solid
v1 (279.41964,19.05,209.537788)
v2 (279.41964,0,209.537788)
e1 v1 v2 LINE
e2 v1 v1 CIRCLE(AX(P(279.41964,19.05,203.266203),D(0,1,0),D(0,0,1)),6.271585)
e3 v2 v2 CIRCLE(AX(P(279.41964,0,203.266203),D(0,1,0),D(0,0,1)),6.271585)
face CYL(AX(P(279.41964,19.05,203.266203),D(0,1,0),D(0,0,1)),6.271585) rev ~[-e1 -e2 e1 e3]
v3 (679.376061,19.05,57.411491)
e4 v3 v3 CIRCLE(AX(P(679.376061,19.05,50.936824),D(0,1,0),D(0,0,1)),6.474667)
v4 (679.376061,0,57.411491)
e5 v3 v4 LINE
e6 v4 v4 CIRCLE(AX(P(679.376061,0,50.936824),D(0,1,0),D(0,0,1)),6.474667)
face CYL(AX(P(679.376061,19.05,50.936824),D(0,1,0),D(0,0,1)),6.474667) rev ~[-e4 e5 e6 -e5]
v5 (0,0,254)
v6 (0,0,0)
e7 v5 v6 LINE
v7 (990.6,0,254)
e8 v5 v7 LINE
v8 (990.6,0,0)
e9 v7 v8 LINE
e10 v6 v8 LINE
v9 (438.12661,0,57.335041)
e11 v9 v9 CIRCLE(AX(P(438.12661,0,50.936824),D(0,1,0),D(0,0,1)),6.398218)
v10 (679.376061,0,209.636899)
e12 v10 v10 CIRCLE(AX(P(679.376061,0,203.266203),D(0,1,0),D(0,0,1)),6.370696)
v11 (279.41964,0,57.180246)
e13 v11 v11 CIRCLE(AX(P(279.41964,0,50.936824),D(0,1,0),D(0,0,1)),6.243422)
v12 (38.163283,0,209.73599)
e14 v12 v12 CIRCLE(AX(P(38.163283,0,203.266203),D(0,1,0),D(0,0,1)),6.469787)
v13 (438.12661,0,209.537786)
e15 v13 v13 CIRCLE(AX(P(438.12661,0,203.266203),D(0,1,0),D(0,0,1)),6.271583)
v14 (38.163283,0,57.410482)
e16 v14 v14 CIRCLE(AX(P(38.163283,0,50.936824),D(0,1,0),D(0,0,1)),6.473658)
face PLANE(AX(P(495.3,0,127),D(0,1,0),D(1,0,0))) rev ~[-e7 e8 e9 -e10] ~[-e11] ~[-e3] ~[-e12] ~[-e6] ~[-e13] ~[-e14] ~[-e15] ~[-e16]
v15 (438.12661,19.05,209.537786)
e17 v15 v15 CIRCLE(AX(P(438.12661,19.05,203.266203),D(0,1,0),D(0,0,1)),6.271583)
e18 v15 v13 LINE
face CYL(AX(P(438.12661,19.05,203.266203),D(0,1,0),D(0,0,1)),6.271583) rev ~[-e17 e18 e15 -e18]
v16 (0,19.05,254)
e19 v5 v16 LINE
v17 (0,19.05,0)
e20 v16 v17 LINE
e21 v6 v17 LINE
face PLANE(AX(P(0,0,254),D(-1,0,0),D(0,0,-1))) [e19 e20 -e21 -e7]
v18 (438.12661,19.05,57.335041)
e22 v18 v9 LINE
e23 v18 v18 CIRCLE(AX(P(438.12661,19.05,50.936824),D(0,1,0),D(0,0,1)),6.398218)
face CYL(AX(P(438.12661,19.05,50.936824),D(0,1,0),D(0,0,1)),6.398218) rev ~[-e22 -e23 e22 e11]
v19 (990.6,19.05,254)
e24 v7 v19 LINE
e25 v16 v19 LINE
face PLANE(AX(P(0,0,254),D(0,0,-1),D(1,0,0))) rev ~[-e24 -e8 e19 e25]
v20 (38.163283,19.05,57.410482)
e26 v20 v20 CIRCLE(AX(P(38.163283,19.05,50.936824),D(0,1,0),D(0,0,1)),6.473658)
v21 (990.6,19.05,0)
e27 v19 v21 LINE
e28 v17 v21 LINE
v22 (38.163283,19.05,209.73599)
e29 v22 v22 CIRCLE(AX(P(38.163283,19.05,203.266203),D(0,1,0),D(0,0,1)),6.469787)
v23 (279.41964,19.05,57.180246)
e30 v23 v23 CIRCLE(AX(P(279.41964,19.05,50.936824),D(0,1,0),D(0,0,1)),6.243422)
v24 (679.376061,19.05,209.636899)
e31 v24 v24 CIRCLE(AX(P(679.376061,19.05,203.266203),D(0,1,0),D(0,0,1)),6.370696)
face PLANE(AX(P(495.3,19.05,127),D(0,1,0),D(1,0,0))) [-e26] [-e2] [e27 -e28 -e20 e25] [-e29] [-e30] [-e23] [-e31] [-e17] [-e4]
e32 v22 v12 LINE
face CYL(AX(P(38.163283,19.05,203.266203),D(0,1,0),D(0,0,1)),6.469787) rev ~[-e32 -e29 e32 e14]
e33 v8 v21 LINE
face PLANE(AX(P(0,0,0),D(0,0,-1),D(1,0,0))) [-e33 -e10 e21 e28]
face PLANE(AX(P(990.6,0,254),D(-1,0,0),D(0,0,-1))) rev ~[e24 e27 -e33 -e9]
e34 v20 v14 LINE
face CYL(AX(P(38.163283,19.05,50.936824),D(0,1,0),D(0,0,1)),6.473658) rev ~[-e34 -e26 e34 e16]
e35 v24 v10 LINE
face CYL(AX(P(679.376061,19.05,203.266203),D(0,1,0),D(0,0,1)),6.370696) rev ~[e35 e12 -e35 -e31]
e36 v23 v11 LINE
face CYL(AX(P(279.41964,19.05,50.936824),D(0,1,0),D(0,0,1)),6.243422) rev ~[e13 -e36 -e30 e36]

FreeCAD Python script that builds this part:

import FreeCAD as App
import Part
import Sketcher

V = App.Vector
Q = App.Units.Quantity


def add_polygon(sketch, points):
    """Adds a closed chain of lines whose ends are joined by coincident constraints."""
    first, n = sketch.GeometryCount, len(points)
    for a, b in zip(points, points[1:] + points[:1]):
        sketch.addGeometry(Part.LineSegment(App.Vector(*a, 0), App.Vector(*b, 0)), False)
    for i in range(n):
        sketch.addConstraint(Sketcher.Constraint("Coincident", first + i, 2, first + (i + 1) % n, 1))

doc = App.newDocument("Part")
body = doc.addObject("PartDesign::Body", "Body")

sketch1 = body.newObject("Sketcher::SketchObject", "Sketch")
sketch1.AttachmentSupport = (doc.getObject("XZ_Plane"), [""])
sketch1.MapMode = "FlatFace"
add_polygon(sketch1, [(0, 0), (0, 254), (991, 254), (991, 0)])
sketch1.addConstraint([
    Sketcher.Constraint("Vertical", 0),
    Sketcher.Constraint("Horizontal", 1),
    Sketcher.Constraint("Vertical", 2),
    Sketcher.Constraint("Horizontal", 3),
    Sketcher.Constraint("Coincident", 3, 2, -1, 1),
    Sketcher.Constraint("DistanceX", 1, 1, 1, 2, Q("39 in")),
    Sketcher.Constraint("DistanceY", 0, 1, 0, 2, Q("10 in")),
])
pad1 = body.newObject("PartDesign::Pad", "Pad")
pad1.Profile = sketch1
pad1.Length = Q("0.75 in")
pad1.Reversed = True

sketch2 = body.newObject("Sketcher::SketchObject", "Sketch001")
sketch2.AttachmentSupport = (doc.getObject("XZ_Plane"), [""])
sketch2.MapMode = "FlatFace"
sketch2.AttachmentOffset = App.Placement(V(0, 0, -0.75 * 25.4), App.Rotation())
sketch2.addGeometry([
    Part.Circle(V(38, 203, 0), V(0, 0, 1), 6),
    Part.Circle(V(38, 51, 0), V(0, 0, 1), 6),
    Part.Circle(V(279, 203, 0), V(0, 0, 1), 6),
    Part.Circle(V(279, 51, 0), V(0, 0, 1), 6),
    Part.Circle(V(438, 51, 0), V(0, 0, 1), 6),
    Part.Circle(V(438, 203, 0), V(0, 0, 1), 6),
    Part.Circle(V(679, 203, 0), V(0, 0, 1), 6),
    Part.Circle(V(679, 51, 0), V(0, 0, 1), 6),
], False)
sketch2.addConstraint([
    Sketcher.Constraint("Horizontal", 0, 3, 2, 3),
    Sketcher.Constraint("Horizontal", 1, 3, 3, 3),
    Sketcher.Constraint("Horizontal", 3, 3, 4, 3),
    Sketcher.Constraint("Horizontal", 2, 3, 5, 3),
    Sketcher.Constraint("Horizontal", 5, 3, 6, 3),
    Sketcher.Constraint("Horizontal", 4, 3, 7, 3),
    Sketcher.Constraint("Vertical", 0, 3, 1, 3),
    Sketcher.Constraint("Vertical", 2, 3, 3, 3),
    Sketcher.Constraint("Vertical", 4, 3, 5, 3),
    Sketcher.Constraint("Vertical", 6, 3, 7, 3),
    Sketcher.Constraint("Diameter", 2, Q("12.54317 mm")),
    Sketcher.Constraint("Diameter", 0, Q("12.939574 mm")),
    Sketcher.Constraint("Diameter", 1, Q("12.947316 mm")),
    Sketcher.Constraint("Diameter", 3, Q("12.486844 mm")),
    Sketcher.Constraint("Diameter", 4, Q("12.796435 mm")),
    Sketcher.Constraint("Diameter", 5, Q("12.543166 mm")),
    Sketcher.Constraint("Diameter", 6, Q("12.741393 mm")),
    Sketcher.Constraint("Diameter", 7, Q("12.949334 mm")),
    Sketcher.Constraint("DistanceX", -1, 1, 2, 3, Q("279.41964 mm")),
    Sketcher.Constraint("DistanceX", -1, 1, 4, 3, Q("438.12661 mm")),
    Sketcher.Constraint("DistanceX", -1, 1, 6, 3, Q("679.376061 mm")),
    Sketcher.Constraint("DistanceY", 1, 3, 0, 3, Q("152.329379 mm")),
    Sketcher.Constraint("DistanceX", 0, 3, 6, 3, Q("641.212779 mm")),
    Sketcher.Constraint("DistanceY", -1, 1, 0, 3, Q("203.266203 mm")),
])
pocket1 = body.newObject("PartDesign::Pocket", "Pocket")
pocket1.Profile = sketch2
pocket1.Length = Q("0.75 in")
pocket1.Reversed = True

doc.recompute()
